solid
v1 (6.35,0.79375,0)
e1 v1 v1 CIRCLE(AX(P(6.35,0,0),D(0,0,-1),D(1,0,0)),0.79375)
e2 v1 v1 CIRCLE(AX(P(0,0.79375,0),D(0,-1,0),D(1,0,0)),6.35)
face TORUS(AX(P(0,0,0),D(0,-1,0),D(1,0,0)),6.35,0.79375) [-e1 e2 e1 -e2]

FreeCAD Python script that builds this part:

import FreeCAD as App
import Part
import Sketcher
Q = App.Units.Quantity

doc = App.newDocument("Part")
body = doc.addObject("PartDesign::Body", "Body")

sketch1 = doc.addObject("Sketcher::SketchObject", "Sketch")
body.addObject(sketch1)
sketch1.AttachmentSupport = (doc.YZ_Plane, [""])
sketch1.MapMode = "FlatFace"
sketch1.addGeometry(Part.Circle(App.Vector(0, 6.3, 0), App.Vector(0, 0, 1), 0.8), False)
sketch1.addConstraint(Sketcher.Constraint("PointOnObject", 0, 3, -2))
sketch1.addConstraint(Sketcher.Constraint("Diameter", 0, Q("0.0625 in")))
sketch1.addConstraint(Sketcher.Constraint("DistanceY", -1, 1, 0, 3, Q("0.25 in")))

sketch2 = doc.addObject("Sketcher::SketchObject", "Sketch001")
body.addObject(sketch2)
sketch2.AttachmentSupport = (doc.XZ_Plane, [""])
sketch2.MapMode = "FlatFace"
sketch2.addGeometry(Part.Circle(App.Vector(0, 0, 0), App.Vector(0, 0, 1), 6), False)
sketch2.addConstraint(Sketcher.Constraint("Coincident", 0, 3, -1, 1))
sketch2.addConstraint(Sketcher.Constraint("Diameter", 0, Q("0.5 in")))
doc.recompute()

additivepipe = doc.addObject("PartDesign::AdditivePipe", "AdditivePipe")
body.addObject(additivepipe)
additivepipe.Profile = sketch1
additivepipe.Spine = (sketch2, ["Edge1"])

doc.recompute()
